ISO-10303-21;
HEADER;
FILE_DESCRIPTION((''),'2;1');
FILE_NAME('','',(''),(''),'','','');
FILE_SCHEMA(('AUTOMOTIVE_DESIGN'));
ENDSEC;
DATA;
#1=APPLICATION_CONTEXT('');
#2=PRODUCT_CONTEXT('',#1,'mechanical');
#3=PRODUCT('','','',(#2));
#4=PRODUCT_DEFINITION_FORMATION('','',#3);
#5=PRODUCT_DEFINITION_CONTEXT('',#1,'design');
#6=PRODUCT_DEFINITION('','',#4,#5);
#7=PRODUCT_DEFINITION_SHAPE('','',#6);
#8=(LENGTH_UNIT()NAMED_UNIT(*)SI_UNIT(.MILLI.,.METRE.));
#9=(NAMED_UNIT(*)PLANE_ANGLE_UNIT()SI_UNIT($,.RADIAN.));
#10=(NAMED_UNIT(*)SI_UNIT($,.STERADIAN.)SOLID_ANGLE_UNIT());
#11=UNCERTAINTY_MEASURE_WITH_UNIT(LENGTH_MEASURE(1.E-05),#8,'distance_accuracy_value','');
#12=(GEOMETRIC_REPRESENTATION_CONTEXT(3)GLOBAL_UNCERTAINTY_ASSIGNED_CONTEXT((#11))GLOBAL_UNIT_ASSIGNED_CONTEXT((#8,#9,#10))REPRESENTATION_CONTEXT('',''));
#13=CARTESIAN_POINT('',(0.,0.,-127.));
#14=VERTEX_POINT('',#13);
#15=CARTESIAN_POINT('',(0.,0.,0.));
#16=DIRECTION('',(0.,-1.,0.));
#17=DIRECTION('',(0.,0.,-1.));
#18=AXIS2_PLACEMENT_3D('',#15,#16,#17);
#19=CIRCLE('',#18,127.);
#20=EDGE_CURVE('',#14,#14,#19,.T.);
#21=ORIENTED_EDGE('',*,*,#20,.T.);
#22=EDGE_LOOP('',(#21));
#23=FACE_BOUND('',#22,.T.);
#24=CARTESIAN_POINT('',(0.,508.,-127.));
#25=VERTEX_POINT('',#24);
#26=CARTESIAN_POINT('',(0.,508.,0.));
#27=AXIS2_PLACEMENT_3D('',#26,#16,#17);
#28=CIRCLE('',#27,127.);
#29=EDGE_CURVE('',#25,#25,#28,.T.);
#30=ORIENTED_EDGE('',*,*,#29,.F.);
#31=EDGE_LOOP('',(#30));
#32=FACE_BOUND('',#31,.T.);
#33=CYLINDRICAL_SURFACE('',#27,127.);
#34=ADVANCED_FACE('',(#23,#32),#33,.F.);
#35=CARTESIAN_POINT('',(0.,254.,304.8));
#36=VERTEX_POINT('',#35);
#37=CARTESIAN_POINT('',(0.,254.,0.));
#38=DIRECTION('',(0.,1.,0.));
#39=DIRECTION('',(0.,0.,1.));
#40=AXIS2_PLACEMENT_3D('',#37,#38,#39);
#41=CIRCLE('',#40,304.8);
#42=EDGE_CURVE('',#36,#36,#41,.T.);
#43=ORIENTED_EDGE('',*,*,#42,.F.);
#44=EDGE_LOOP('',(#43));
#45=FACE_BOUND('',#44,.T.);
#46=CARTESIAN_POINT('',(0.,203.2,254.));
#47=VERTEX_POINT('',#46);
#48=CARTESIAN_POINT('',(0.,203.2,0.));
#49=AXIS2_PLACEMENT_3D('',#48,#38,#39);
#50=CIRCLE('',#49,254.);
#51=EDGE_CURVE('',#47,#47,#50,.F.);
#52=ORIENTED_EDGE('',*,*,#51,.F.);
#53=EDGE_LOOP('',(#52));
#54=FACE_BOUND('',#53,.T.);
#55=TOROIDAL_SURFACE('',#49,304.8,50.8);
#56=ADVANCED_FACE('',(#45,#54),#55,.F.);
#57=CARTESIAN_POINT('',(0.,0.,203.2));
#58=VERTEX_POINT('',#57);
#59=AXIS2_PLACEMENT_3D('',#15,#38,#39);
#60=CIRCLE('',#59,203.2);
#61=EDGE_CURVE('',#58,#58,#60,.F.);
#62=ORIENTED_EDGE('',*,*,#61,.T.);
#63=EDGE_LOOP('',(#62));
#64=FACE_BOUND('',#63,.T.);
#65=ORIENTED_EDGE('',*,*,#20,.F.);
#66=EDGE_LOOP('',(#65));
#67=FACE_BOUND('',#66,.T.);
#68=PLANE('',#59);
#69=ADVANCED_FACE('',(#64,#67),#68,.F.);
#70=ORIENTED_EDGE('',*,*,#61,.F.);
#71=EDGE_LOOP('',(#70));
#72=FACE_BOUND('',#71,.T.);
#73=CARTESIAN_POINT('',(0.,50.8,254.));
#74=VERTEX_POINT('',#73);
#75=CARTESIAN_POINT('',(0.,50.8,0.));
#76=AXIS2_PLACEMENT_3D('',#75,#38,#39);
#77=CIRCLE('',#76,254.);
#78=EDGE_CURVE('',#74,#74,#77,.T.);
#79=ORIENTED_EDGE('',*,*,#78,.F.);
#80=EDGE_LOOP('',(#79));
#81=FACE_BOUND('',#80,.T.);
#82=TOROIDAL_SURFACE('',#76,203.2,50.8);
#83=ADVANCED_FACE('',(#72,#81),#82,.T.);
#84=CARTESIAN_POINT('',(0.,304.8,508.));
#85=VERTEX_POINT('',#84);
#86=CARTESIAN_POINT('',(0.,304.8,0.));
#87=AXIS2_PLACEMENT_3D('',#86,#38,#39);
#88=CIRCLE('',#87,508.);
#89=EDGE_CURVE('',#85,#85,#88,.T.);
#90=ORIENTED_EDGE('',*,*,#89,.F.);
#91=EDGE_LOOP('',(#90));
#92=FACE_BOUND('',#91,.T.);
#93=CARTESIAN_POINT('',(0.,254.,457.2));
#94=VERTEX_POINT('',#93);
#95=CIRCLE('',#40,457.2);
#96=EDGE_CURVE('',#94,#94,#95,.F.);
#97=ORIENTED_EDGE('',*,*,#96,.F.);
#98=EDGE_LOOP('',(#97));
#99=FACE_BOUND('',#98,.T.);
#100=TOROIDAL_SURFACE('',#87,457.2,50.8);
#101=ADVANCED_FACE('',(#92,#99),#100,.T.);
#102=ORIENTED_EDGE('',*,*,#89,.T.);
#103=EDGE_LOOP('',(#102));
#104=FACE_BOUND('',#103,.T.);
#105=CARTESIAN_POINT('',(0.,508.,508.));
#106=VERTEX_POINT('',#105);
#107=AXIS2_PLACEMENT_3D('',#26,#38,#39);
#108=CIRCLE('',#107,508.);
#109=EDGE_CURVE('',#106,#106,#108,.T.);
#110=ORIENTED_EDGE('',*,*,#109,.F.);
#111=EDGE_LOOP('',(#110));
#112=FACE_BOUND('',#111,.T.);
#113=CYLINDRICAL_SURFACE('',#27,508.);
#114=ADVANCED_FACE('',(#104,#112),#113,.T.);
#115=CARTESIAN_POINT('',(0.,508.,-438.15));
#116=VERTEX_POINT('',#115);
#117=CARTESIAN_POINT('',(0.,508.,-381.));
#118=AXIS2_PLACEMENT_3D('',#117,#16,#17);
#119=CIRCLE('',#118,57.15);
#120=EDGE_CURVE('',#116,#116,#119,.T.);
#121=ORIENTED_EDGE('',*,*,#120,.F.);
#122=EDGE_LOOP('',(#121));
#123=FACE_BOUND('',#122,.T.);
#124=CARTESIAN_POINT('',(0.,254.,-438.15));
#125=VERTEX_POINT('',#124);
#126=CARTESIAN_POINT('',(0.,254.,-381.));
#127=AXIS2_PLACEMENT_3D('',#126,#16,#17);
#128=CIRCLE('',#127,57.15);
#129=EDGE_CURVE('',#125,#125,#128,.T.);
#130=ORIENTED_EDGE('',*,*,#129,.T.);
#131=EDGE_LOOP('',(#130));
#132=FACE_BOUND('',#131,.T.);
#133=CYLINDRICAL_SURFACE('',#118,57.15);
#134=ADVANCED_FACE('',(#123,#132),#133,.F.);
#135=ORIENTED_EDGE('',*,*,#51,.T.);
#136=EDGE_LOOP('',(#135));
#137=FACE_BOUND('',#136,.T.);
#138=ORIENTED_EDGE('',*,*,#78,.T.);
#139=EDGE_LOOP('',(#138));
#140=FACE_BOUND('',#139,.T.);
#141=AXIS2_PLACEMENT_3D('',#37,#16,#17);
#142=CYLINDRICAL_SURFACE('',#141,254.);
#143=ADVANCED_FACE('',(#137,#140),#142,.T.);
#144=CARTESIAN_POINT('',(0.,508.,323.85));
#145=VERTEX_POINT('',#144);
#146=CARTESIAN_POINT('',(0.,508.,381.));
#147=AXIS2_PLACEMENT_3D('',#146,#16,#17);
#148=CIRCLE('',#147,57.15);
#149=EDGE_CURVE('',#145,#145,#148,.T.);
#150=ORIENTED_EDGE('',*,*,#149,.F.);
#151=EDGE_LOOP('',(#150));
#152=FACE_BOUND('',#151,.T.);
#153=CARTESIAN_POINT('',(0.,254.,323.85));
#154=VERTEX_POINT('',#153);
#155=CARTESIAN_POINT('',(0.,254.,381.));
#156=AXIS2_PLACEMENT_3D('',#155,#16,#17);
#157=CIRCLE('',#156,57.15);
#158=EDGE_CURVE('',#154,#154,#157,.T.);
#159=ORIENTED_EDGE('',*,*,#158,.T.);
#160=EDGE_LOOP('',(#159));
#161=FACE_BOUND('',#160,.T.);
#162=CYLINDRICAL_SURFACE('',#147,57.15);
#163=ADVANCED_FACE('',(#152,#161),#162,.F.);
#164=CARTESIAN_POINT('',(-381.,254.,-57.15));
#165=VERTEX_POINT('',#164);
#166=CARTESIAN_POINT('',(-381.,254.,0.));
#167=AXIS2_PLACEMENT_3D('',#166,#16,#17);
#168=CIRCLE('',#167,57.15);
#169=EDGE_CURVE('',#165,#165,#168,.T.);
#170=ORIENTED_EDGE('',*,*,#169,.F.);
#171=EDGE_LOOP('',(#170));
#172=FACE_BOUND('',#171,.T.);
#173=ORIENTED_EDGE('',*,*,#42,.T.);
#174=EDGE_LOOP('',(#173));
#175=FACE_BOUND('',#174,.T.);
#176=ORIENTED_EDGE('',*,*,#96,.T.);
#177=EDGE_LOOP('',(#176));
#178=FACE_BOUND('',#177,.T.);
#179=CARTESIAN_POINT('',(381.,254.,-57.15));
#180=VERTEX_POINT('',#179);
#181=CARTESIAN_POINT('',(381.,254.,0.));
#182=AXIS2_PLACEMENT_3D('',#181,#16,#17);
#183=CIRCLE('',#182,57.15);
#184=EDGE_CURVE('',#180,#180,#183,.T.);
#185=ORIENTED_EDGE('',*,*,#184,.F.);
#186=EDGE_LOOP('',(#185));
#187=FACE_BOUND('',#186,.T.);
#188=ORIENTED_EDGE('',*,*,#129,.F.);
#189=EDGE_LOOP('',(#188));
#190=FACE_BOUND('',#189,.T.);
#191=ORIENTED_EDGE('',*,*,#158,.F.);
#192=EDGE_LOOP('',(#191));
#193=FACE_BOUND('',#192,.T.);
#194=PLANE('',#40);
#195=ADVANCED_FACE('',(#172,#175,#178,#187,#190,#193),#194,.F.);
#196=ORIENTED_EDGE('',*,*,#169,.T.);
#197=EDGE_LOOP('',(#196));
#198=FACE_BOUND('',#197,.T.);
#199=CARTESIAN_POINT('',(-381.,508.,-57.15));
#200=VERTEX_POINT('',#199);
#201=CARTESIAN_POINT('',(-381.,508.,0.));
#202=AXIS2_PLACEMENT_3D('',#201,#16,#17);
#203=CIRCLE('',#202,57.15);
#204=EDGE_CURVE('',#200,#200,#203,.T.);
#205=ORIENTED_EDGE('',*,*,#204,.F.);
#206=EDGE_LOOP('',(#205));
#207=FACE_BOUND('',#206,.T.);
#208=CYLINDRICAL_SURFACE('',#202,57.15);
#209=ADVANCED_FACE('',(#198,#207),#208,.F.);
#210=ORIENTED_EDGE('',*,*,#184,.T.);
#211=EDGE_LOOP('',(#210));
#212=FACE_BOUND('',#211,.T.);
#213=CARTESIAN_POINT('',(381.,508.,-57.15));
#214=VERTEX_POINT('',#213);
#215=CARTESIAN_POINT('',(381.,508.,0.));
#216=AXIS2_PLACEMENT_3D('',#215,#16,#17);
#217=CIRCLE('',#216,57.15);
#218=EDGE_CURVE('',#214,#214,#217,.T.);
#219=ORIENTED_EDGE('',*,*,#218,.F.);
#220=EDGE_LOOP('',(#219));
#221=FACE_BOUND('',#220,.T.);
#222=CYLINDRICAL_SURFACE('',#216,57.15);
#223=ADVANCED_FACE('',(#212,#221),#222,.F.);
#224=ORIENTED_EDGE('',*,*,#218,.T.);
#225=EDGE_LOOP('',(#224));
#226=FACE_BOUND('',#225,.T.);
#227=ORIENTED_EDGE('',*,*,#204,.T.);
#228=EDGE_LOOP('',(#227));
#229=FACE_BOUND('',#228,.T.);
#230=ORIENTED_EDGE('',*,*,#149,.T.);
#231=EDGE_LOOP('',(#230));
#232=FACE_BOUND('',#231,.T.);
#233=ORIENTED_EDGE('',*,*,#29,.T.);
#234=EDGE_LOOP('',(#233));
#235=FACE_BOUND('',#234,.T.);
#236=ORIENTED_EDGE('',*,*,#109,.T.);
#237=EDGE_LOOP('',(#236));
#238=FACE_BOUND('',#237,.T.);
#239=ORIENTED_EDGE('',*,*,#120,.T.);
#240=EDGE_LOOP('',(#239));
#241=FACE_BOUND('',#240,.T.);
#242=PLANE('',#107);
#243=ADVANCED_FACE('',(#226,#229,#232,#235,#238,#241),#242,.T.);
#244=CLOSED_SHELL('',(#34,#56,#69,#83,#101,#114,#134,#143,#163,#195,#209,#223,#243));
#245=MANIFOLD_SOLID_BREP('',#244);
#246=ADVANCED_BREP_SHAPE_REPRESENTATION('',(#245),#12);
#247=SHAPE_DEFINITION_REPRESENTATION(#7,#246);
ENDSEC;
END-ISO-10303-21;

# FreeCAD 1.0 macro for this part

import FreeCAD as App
import Part
import Sketcher
Q = App.Units.Quantity


def edges_at(feature, points):
    """Names of the edges that pass closest to the given points."""
    edges = feature.Shape.Edges
    near = lambda p: min(range(len(edges)), key=lambda i: edges[i].distToShape(Part.Vertex(*p))[0])
    return sorted({f"Edge{near(p) + 1}" for p in points})

doc = App.newDocument("Part")
body = doc.addObject("PartDesign::Body", "Body")

sketch1 = body.newObject("Sketcher::SketchObject", "Sketch")
sketch1.AttachmentSupport = (doc.getObject("XZ_Plane"), [""])
sketch1.MapMode = "FlatFace"
sketch1.addGeometry(Part.Circle(App.Vector(0, 0, 0), App.Vector(0, 0, 1), 254), False)
sketch1.addConstraint([
    Sketcher.Constraint("Coincident", 0, 3, -1, 1),
    Sketcher.Constraint("Diameter", 0, Q("20 in")),
])
pad1 = body.newObject("PartDesign::Pad", "Pad")
pad1.Profile = sketch1
pad1.Length = Q("10 in")
pad1.Reversed = True

sketch2 = body.newObject("Sketcher::SketchObject", "Sketch001")
sketch2.AttachmentSupport = (doc.getObject("XZ_Plane"), [""])
sketch2.MapMode = "FlatFace"
sketch2.AttachmentOffset = App.Placement(App.Vector(0, 0, -10 * 25.4), App.Rotation())
sketch2.addGeometry(Part.Circle(App.Vector(0, 0, 0), App.Vector(0, 0, 1), 508), False)
sketch2.addConstraint([
    Sketcher.Constraint("Coincident", 0, 3, -1, 1),
    Sketcher.Constraint("Diameter", 0, Q("40 in")),
])
pad2 = body.newObject("PartDesign::Pad", "Pad001")
pad2.Profile = sketch2
pad2.Length = Q("10 in")
pad2.Reversed = True

sketch3 = body.newObject("Sketcher::SketchObject", "Sketch002")
sketch3.AttachmentSupport = (doc.getObject("XZ_Plane"), [""])
sketch3.MapMode = "FlatFace"
sketch3.addGeometry(Part.Circle(App.Vector(0, 0, 0), App.Vector(0, 0, 1), 127), False)
sketch3.addConstraint([
    Sketcher.Constraint("Coincident", 0, 3, -1, 1),
    Sketcher.Constraint("Diameter", 0, Q("10 in")),
])
pocket1 = body.newObject("PartDesign::Pocket", "Pocket")
pocket1.Profile = sketch3
pocket1.Type = "ThroughAll"

sketch4 = body.newObject("Sketcher::SketchObject", "Sketch003")
sketch4.AttachmentSupport = (doc.getObject("XZ_Plane"), [""])
sketch4.MapMode = "FlatFace"
sketch4.AttachmentOffset = App.Placement(App.Vector(0, 0, -10 * 25.4), App.Rotation())
sketch4.addGeometry([
    Part.Circle(App.Vector(0, -381, 0), App.Vector(0, 0, 1), 57.15),
    Part.Circle(App.Vector(381, 0, 0), App.Vector(0, 0, 1), 57.15),
    Part.Circle(App.Vector(0, 381, 0), App.Vector(0, 0, 1), 57.15),
    Part.Circle(App.Vector(-381, 0, 0), App.Vector(0, 0, 1), 57.15),
], False)
sketch4.addConstraint([
    Sketcher.Constraint("Equal", 0, 1),
    Sketcher.Constraint("Equal", 1, 2),
    Sketcher.Constraint("Equal", 2, 3),
    Sketcher.Constraint("Symmetric", 0, 3, 2, 3, -1, 1),
    Sketcher.Constraint("Symmetric", 1, 3, 3, 3, -1, 1),
    Sketcher.Constraint("PointOnObject", 0, 3, -2),
    Sketcher.Constraint("PointOnObject", 1, 3, -1),
    Sketcher.Constraint("Diameter", 0, Q("4.5 in")),
    Sketcher.Constraint("DistanceY", 0, 3, -1, 1, Q("15 in")),
    Sketcher.Constraint("DistanceX", -1, 1, 1, 3, Q("15 in")),
])
pocket2 = body.newObject("PartDesign::Pocket", "Pocket001")
pocket2.Profile = sketch4
pocket2.Type = "ThroughAll"
doc.recompute()

fillet = body.newObject("PartDesign::Fillet", "Fillet")
fillet.Base = (pocket2, edges_at(pocket2, [(0, 0, -254), (0, 254, -254), (0, 254, -508)]))
fillet.Radius = Q("2 in")

doc.recompute()
